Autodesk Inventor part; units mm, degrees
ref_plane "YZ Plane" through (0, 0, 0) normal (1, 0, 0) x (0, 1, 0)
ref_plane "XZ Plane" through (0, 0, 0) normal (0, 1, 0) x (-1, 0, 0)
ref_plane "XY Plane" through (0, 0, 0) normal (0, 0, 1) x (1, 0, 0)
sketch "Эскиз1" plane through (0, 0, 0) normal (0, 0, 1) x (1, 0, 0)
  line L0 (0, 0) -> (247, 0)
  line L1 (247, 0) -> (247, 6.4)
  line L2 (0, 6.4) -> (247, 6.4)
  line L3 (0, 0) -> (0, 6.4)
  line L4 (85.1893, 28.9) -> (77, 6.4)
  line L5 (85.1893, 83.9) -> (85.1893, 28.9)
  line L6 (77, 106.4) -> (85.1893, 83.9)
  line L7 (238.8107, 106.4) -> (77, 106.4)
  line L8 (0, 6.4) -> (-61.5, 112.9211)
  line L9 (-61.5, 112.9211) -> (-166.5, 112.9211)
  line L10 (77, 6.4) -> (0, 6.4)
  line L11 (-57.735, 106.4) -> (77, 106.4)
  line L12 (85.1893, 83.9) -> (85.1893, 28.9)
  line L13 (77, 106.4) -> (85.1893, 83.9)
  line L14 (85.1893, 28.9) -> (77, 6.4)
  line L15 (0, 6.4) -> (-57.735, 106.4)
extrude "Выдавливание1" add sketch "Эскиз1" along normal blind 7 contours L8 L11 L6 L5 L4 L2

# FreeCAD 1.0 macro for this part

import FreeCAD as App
import Part
import Sketcher
from FreeCAD import Vector
Q = App.Units.Quantity


def add_polygon(sketch, points):
    """Adds a closed chain of lines whose ends are joined by coincident constraints."""
    first, n = sketch.GeometryCount, len(points)
    for a, b in zip(points, points[1:] + points[:1]):
        sketch.addGeometry(Part.LineSegment(App.Vector(*a, 0), App.Vector(*b, 0)), False)
    for i in range(n):
        sketch.addConstraint(Sketcher.Constraint("Coincident", first + i, 2, first + (i + 1) % n, 1))

doc = App.newDocument("Part")
body = doc.addObject("PartDesign::Body", "Body")

# Sketch on XY plane
sketch1 = body.newObject("Sketcher::SketchObject", "Sketch")
sketch1.AttachmentSupport = (doc.getObject("XY_Plane"), [""])
sketch1.MapMode = "FlatFace"
add_polygon(sketch1, [(-57.73503, 106.399983), (0, 6.4), (77, 6.4), (85.1893, 28.9), (85.1893, 83.9), (77, 106.4)])  # lines 0-5
sketch1.addConstraint([
    Sketcher.Constraint("Horizontal", 1),
    Sketcher.Constraint("Vertical", 3),
    Sketcher.Constraint("Horizontal", 5),
    Sketcher.Constraint("PointOnObject", 0, 2, -2),
    Sketcher.Constraint("Vertical", 1, 2, 4, 2),
    Sketcher.Constraint("Equal", 2, 4),
    Sketcher.Constraint("DistanceX", 1, 1, 1, 2, Q("77 mm")),
    Sketcher.Constraint("DistanceY", 3, 1, 3, 2, Q("55 mm")),
    Sketcher.Constraint("Angle", 0, Q("-60 deg")),
    Sketcher.Constraint("Angle", 2, Q("70 deg")),
    Sketcher.Constraint("DistanceY", 1, 2, 4, 2, Q("100 mm")),
    Sketcher.Constraint("DistanceY", -1, 1, 0, 2, Q("6.4 mm")),
])
pad1 = body.newObject("PartDesign::Pad", "Pad")
pad1.Profile = sketch1
pad1.Length = 7

doc.recompute()
